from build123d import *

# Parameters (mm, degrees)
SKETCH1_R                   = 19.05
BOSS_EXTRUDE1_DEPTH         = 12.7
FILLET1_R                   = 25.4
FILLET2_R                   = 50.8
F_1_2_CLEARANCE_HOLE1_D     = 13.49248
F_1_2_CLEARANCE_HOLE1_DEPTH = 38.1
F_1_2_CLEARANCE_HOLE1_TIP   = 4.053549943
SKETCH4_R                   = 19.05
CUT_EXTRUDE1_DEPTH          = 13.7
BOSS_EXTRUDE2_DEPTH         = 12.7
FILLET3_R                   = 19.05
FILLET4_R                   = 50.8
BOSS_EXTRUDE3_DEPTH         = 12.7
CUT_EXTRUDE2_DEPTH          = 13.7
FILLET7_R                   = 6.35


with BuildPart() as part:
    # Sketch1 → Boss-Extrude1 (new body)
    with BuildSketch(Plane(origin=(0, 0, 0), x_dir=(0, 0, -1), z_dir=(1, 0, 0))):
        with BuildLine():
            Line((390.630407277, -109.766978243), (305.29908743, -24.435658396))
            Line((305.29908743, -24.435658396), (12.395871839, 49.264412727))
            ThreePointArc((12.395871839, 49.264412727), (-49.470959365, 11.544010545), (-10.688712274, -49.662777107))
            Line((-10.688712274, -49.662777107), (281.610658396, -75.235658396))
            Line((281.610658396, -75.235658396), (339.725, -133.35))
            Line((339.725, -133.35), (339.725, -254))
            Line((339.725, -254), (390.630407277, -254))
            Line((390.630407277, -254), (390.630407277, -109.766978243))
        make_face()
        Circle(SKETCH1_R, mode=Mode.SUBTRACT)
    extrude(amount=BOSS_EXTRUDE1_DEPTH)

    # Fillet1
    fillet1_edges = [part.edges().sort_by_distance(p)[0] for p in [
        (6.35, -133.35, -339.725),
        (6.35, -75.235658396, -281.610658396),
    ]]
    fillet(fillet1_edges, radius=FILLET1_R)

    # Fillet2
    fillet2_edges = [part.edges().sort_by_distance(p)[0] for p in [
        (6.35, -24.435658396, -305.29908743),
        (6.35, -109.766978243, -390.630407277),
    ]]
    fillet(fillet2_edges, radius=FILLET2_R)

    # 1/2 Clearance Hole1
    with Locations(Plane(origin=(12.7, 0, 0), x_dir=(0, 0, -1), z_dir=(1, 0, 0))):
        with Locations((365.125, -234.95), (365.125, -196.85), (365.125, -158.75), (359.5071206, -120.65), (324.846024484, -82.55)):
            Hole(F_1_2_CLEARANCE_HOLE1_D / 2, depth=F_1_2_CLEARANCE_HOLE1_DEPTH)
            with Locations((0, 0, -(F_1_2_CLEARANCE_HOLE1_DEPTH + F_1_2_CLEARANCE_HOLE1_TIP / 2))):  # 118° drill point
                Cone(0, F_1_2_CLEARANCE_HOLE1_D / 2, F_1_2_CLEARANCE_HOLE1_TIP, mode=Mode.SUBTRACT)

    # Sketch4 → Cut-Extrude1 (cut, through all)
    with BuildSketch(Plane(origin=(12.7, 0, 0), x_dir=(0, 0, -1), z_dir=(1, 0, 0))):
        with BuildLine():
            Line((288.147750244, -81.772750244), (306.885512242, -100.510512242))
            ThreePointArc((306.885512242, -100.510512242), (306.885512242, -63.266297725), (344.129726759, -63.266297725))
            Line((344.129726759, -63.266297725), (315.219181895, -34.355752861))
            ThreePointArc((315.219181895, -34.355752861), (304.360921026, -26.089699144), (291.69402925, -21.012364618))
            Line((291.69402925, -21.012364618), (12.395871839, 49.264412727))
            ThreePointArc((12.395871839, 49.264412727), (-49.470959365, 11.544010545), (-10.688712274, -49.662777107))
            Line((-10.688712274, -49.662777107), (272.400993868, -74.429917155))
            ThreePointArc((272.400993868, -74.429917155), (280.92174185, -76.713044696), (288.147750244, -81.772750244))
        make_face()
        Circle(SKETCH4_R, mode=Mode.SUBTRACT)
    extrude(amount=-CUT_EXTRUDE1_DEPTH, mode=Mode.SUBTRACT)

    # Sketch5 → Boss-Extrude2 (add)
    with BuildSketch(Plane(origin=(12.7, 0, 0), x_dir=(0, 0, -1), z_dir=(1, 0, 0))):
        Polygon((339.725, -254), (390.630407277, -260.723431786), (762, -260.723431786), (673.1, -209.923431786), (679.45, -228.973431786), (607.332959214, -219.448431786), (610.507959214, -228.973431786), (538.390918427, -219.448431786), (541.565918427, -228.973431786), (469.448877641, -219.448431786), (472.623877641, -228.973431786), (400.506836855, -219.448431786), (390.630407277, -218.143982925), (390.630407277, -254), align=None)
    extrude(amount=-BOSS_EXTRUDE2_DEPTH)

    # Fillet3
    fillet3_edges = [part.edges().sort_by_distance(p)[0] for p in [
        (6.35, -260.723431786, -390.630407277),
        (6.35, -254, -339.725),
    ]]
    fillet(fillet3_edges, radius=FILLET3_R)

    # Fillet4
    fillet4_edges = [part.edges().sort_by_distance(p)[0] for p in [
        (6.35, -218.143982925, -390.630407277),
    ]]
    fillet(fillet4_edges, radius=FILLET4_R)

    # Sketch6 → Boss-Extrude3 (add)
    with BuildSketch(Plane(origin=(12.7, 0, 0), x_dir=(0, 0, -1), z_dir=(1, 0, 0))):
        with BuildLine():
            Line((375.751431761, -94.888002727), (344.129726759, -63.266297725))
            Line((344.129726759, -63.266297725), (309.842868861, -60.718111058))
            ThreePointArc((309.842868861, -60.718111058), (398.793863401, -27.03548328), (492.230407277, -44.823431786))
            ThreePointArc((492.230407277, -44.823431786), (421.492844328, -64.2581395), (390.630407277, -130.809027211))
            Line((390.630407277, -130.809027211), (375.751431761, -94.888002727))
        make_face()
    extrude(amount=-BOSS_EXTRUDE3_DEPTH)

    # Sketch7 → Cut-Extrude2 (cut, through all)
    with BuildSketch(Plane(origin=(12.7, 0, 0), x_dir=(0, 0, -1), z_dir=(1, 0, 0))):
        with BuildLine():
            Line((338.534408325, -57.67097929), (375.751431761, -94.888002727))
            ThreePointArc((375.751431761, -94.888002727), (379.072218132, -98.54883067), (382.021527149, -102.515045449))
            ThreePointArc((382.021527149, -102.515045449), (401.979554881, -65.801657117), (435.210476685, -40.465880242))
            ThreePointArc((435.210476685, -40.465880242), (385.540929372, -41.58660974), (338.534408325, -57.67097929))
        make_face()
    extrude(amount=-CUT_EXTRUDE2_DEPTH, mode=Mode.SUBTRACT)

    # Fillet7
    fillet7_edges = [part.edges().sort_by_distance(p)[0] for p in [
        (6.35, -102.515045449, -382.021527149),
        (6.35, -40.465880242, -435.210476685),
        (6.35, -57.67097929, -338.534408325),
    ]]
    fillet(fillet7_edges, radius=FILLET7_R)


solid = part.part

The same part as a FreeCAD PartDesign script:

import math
import FreeCAD as App
import Part
import Sketcher

V = App.Vector
Q = App.Units.Quantity


def edges_at(feature, points):
    """Names of the edges that pass closest to the given points."""
    edges = feature.Shape.Edges
    near = lambda p: min(range(len(edges)), key=lambda i: edges[i].distToShape(Part.Vertex(*p))[0])
    return sorted({f"Edge{near(p) + 1}" for p in points})

doc = App.newDocument("Part")
params = doc.addObject("Spreadsheet::Sheet", "Params")
for row, (alias, value) in enumerate([
    ("sketch1_radius", "2 in"),
    ("sketch1_diameter", "1.5 in"),
    ("sketch1_width", "4.75 in"),
    ("pad1_length", "0.5 in"),
    ("fillet_radius", "1 in"),
    ("fillet2_radius", "2 in"),
    ("hole_diameter", "0.5312 in"),
    ("hole_depth", "1.5 in"),
    ("sketch3_radius", "2 in"),
    ("sketch3_radius2", "1 in"),
    ("sketch3_diameter", "1.5 in"),
    ("pad2_length", "0.5 in"),
    ("fillet3_radius", "0.75 in"),
    ("fillet4_radius", "2 in"),
    ("pad3_length", "0.5 in"),
    ("sketch6_radius", "2 in"),
    ("fillet5_radius", "0.25 in"),
], start=1):
    params.set(f"A{row}", alias)
    params.set(f"B{row}", "=" + value)
    params.setAlias(f"B{row}", alias)

body = doc.addObject("PartDesign::Body", "Body")

sketch1 = body.newObject("Sketcher::SketchObject", "Sketch")
sketch1.AttachmentSupport = (doc.getObject("YZ_Plane"), [""])
sketch1.MapMode = "FlatFace"
sketch1.addGeometry([
    Part.LineSegment(V(-110, -391, 0), V(-24, -305, 0)),
    Part.LineSegment(V(-24, -305, 0), V(49, -12, 0)),
    Part.ArcOfCircle(Part.Circle(V(0, 0, 0), V(0, 0, 1), 51), math.radians(-14), math.radians(168)),
    Part.LineSegment(V(-50, 11, 0), V(-75, -282, 0)),
    Part.LineSegment(V(-75, -282, 0), V(-133, -340, 0)),
    Part.LineSegment(V(-133, -340, 0), V(-254, -340, 0)),
    Part.LineSegment(V(-254, -340, 0), V(-254, -391, 0)),
    Part.LineSegment(V(-254, -391, 0), V(-110, -391, 0)),
    Part.Circle(V(0, 0, 0), V(0, 0, 1), 19),
], False)
sketch1.addConstraint([
    Sketcher.Constraint("Coincident", 0, 2, 1, 1),
    Sketcher.Constraint("Tangent", 1, 2, 2, 1),
    Sketcher.Constraint("Coincident", 2, 2, 3, 1),
    Sketcher.Constraint("Coincident", 3, 2, 4, 1),
    Sketcher.Constraint("Coincident", 4, 2, 5, 1),
    Sketcher.Constraint("Coincident", 5, 2, 6, 1),
    Sketcher.Constraint("Coincident", 6, 2, 7, 1),
    Sketcher.Constraint("Coincident", 7, 2, 0, 1),
    Sketcher.Constraint("Horizontal", 5),
    Sketcher.Constraint("Vertical", 6),
    Sketcher.Constraint("Horizontal", 7),
    Sketcher.Constraint("Coincident", 2, 3, -1, 1),
    Sketcher.Constraint("Coincident", 8, 3, -1, 1),
    Sketcher.Constraint("Parallel", 0, 4),
    Sketcher.Constraint("Radius", 2, Q("2 in")),
    Sketcher.Constraint("Diameter", 8, Q("1.5 in")),
    Sketcher.Constraint("DistanceX", 5, 2, -1, 1, Q("10 in")),
    Sketcher.Constraint("Angle", 0, Q("45 deg")),
    Sketcher.Constraint("Angle", 3, Q("-95 deg")),
    Sketcher.Constraint("DistanceX", 3, 2, 0, 2, Q("2 in")),
    Sketcher.Constraint("DistanceX", 5, 2, 5, 1, Q("4.75 in")),
    Sketcher.Constraint("DistanceY", 4, 2, -1, 1, Q("13.375 in")),
    Sketcher.Constraint("Distance", 1, 302.033101),
    Sketcher.Constraint("DistanceX", 7, 1, 7, 2, 144.233022),
    Sketcher.Constraint("DistanceY", 0, 2, 2, 2, 315.9878),
])
sketch1.setExpression("Constraints[14]", "Params.sketch1_radius")
sketch1.setExpression("Constraints[15]", "Params.sketch1_diameter")
sketch1.setExpression("Constraints[20]", "Params.sketch1_width")
pad1 = body.newObject("PartDesign::Pad", "Pad")
pad1.Profile = sketch1
pad1.setExpression("Length", "Params.pad1_length")
doc.recompute()

fillet = body.newObject("PartDesign::Fillet", "Fillet")
fillet.Base = (pad1, edges_at(pad1, [(6.35, -133.35, -339.725), (6.35, -75.236, -281.611)]))
fillet.setExpression("Radius", "Params.fillet_radius")
doc.recompute()

fillet2 = body.newObject("PartDesign::Fillet", "Fillet001")
fillet2.Base = (fillet, edges_at(fillet, [(6.35, -24.436, -305.299), (6.35, -109.767, -390.63)]))
fillet2.setExpression("Radius", "Params.fillet2_radius")

sketch2 = body.newObject("Sketcher::SketchObject", "Sketch001")
sketch2.AttachmentSupport = (doc.getObject("YZ_Plane"), [""])
sketch2.MapMode = "FlatFace"
sketch2.AttachmentOffset = App.Placement(V(0, 0, 0.5 * 25.4), App.Rotation())
sketch2.addGeometry([
    Part.Circle(V(-235, -365, 0), V(0, 0, 1), 7),
    Part.Circle(V(-197, -365, 0), V(0, 0, 1), 7),
    Part.Circle(V(-159, -365, 0), V(0, 0, 1), 7),
    Part.Circle(V(-121, -360, 0), V(0, 0, 1), 7),
    Part.Circle(V(-83, -325, 0), V(0, 0, 1), 7),
], False)
sketch2.addConstraint([
    Sketcher.Constraint("Equal", 0, 1),
    Sketcher.Constraint("Equal", 1, 2),
    Sketcher.Constraint("Equal", 2, 3),
    Sketcher.Constraint("Equal", 3, 4),
    Sketcher.Constraint("Horizontal", 0, 3, 1, 3),
    Sketcher.Constraint("Horizontal", 1, 3, 2, 3),
    Sketcher.Constraint("DistanceX", 0, 3, 2, 3, Q("3 in")),
    Sketcher.Constraint("DistanceX", 1, 3, 3, 3, Q("3 in")),
    Sketcher.Constraint("DistanceX", 2, 3, 4, 3, Q("3 in")),
    Sketcher.Constraint("Diameter", 0, Q("0.5312 in")),
    Sketcher.Constraint("DistanceX", 0, 3, 1, 3, Q("1.5 in")),
    Sketcher.Constraint("DistanceX", 0, 3, -1, 1, Q("9.25 in")),
    Sketcher.Constraint("DistanceY", 0, 3, -1, 1, Q("14.375 in")),
    Sketcher.Constraint("DistanceY", 3, 3, -1, 1, 359.507121),
    Sketcher.Constraint("DistanceY", 4, 3, -1, 1, 324.846024),
])
doc.recompute()
hole = body.newObject("PartDesign::Hole", "Hole")
hole.Profile = sketch2
hole.ThreadType = "None"
hole.setExpression("Diameter", "Params.hole_diameter")
hole.DepthType = "Dimension"
hole.setExpression("Depth", "Params.hole_depth")
hole.DrillPoint = "Angled"
hole.DrillPointAngle = 118

sketch3 = body.newObject("Sketcher::SketchObject", "Sketch002")
sketch3.AttachmentSupport = (doc.getObject("YZ_Plane"), [""])
sketch3.MapMode = "FlatFace"
sketch3.AttachmentOffset = App.Placement(V(0, 0, 0.5 * 25.4), App.Rotation())
sketch3.addGeometry([
    Part.LineSegment(V(-82, -288, 0), V(-101, -307, 0)),
    Part.ArcOfCircle(Part.Circle(V(-82, -326, 0), V(0, 0, 1), 26), math.radians(-45), math.radians(135)),
    Part.LineSegment(V(-63, -344, 0), V(-34, -315, 0)),
    Part.ArcOfCircle(Part.Circle(V(-70, -279, 0), V(0, 0, 1), 51), math.radians(-45), math.radians(-14)),
    Part.LineSegment(V(-21, -292, 0), V(49, -12, 0)),
    Part.ArcOfCircle(Part.Circle(V(0, 0, 0), V(0, 0, 1), 51), math.radians(-14), math.radians(168)),
    Part.LineSegment(V(-50, 11, 0), V(-74, -272, 0)),
    Part.ArcOfCircle(Part.Circle(V(-100, -270, 0), V(0, 0, 1), 25), math.radians(-45), math.radians(-5)),
    Part.Circle(V(0, 0, 0), V(0, 0, 1), 19),
], False)
sketch3.addConstraint([
    Sketcher.Constraint("Tangent", 0, 2, 1, 2),
    Sketcher.Constraint("Tangent", 1, 1, 2, 1),
    Sketcher.Constraint("Tangent", 2, 2, 3, 1),
    Sketcher.Constraint("Tangent", 3, 2, 4, 1),
    Sketcher.Constraint("Tangent", 4, 2, 5, 1),
    Sketcher.Constraint("Coincident", 5, 2, 6, 1),
    Sketcher.Constraint("Tangent", 6, 2, 7, 2),
    Sketcher.Constraint("Tangent", 7, 1, 0, 1),
    Sketcher.Constraint("Coincident", 5, 3, -1, 1),
    Sketcher.Constraint("Coincident", 8, 3, -1, 1),
    Sketcher.Constraint("Equal", 3, 5),
    Sketcher.Constraint("Parallel", 0, 2),
    Sketcher.Constraint("Radius", 3, Q("2 in")),
    Sketcher.Constraint("Radius", 7, Q("1 in")),
    Sketcher.Constraint("Diameter", 8, Q("1.5 in")),
    Sketcher.Constraint("Angle", 0, Q("-135 deg")),
    Sketcher.Constraint("Angle", 6, Q("-95 deg")),
    Sketcher.Constraint("Radius", 1, 26.335637),
    Sketcher.Constraint("DistanceX", 3, 3, 5, 2, 20.614),
    Sketcher.Constraint("Distance", 4, 288.003969),
    Sketcher.Constraint("DistanceY", 1, 3, -1, 1, 325.50762),
    Sketcher.Constraint("DistanceY", 7, 3, -1, 1, 270.187238),
])
sketch3.setExpression("Constraints[12]", "Params.sketch3_radius")
sketch3.setExpression("Constraints[13]", "Params.sketch3_radius2")
sketch3.setExpression("Constraints[14]", "Params.sketch3_diameter")
pocket1 = body.newObject("PartDesign::Pocket", "Pocket")
pocket1.Profile = sketch3
pocket1.Type = "ThroughAll"

sketch4 = body.newObject("Sketcher::SketchObject", "Sketch003")
sketch4.AttachmentSupport = (doc.getObject("YZ_Plane"), [""])
sketch4.MapMode = "FlatFace"
sketch4.AttachmentOffset = App.Placement(V(0, 0, 0.5 * 25.4), App.Rotation())
sketch4.addGeometry([
    Part.LineSegment(V(-254, -340, 0), V(-261, -391, 0)),
    Part.LineSegment(V(-261, -391, 0), V(-261, -762, 0)),
    Part.LineSegment(V(-261, -762, 0), V(-210, -673, 0)),
    Part.LineSegment(V(-210, -673, 0), V(-229, -679, 0)),
    Part.LineSegment(V(-229, -679, 0), V(-219, -607, 0)),
    Part.LineSegment(V(-219, -607, 0), V(-229, -611, 0)),
    Part.LineSegment(V(-229, -611, 0), V(-219, -538, 0)),
    Part.LineSegment(V(-219, -538, 0), V(-229, -542, 0)),
    Part.LineSegment(V(-229, -542, 0), V(-219, -469, 0)),
    Part.LineSegment(V(-219, -469, 0), V(-229, -473, 0)),
    Part.LineSegment(V(-229, -473, 0), V(-219, -401, 0)),
    Part.LineSegment(V(-219, -401, 0), V(-218, -391, 0)),
    Part.LineSegment(V(-218, -391, 0), V(-254, -391, 0)),
    Part.LineSegment(V(-254, -391, 0), V(-254, -340, 0)),
], False)
sketch4.addConstraint([
    Sketcher.Constraint("Coincident", 0, 2, 1, 1),
    Sketcher.Constraint("Coincident", 1, 2, 2, 1),
    Sketcher.Constraint("Coincident", 2, 2, 3, 1),
    Sketcher.Constraint("Coincident", 3, 2, 4, 1),
    Sketcher.Constraint("Coincident", 4, 2, 5, 1),
    Sketcher.Constraint("Coincident", 5, 2, 6, 1),
    Sketcher.Constraint("Coincident", 6, 2, 7, 1),
    Sketcher.Constraint("Coincident", 7, 2, 8, 1),
    Sketcher.Constraint("Coincident", 8, 2, 9, 1),
    Sketcher.Constraint("Coincident", 9, 2, 10, 1),
    Sketcher.Constraint("Coincident", 10, 2, 11, 1),
    Sketcher.Constraint("Coincident", 11, 2, 12, 1),
    Sketcher.Constraint("Coincident", 12, 2, 13, 1),
    Sketcher.Constraint("Coincident", 13, 2, 0, 1),
    Sketcher.Constraint("Vertical", 1),
    Sketcher.Constraint("Horizontal", 12),
    Sketcher.Constraint("Vertical", 13),
    Sketcher.Constraint("Parallel", 0, 4),
    Sketcher.Constraint("Parallel", 3, 5),
    Sketcher.Constraint("Parallel", 4, 6),
    Sketcher.Constraint("Parallel", 5, 7),
    Sketcher.Constraint("Parallel", 6, 8),
    Sketcher.Constraint("Parallel", 7, 9),
    Sketcher.Constraint("Parallel", 8, 10),
    Sketcher.Constraint("Parallel", 10, 11),
    Sketcher.Constraint("Horizontal", 0, 2, 11, 2),
    Sketcher.Constraint("Vertical", 3, 2, 5, 2),
    Sketcher.Constraint("Vertical", 4, 2, 6, 2),
    Sketcher.Constraint("Vertical", 5, 2, 7, 2),
    Sketcher.Constraint("Vertical", 6, 2, 8, 2),
    Sketcher.Constraint("Vertical", 7, 2, 9, 2),
    Sketcher.Constraint("Vertical", 8, 2, 10, 2),
    Sketcher.Constraint("DistanceY", 1, 2, -1, 1, Q("30 in")),
    Sketcher.Constraint("DistanceX", 12, 2, -1, 1, Q("10 in")),
    Sketcher.Constraint("DistanceX", 1, 2, 2, 2, Q("2 in")),
    Sketcher.Constraint("DistanceY", 2, 2, -1, 1, Q("26.5 in")),
    Sketcher.Constraint("DistanceY", 3, 2, -1, 1, Q("26.75 in")),
    Sketcher.Constraint("DistanceX", 3, 2, 2, 2, Q("0.75 in")),
    Sketcher.Constraint("DistanceY", 13, 2, -1, 1, Q("13.375 in")),
    Sketcher.Constraint("DistanceX", 4, 2, 2, 2, Q("0.375 in")),
    Sketcher.Constraint("Distance", 11, 9.962201),
    Sketcher.Constraint("DistanceX", 12, 2, 12, 1, 35.856017),
])
pad2 = body.newObject("PartDesign::Pad", "Pad001")
pad2.Profile = sketch4
pad2.setExpression("Length", "Params.pad2_length")
pad2.Reversed = True
doc.recompute()

fillet3 = body.newObject("PartDesign::Fillet", "Fillet002")
fillet3.Base = (pad2, edges_at(pad2, [(6.35, -260.723, -390.63), (6.35, -254, -339.725)]))
fillet3.setExpression("Radius", "Params.fillet3_radius")
doc.recompute()

fillet4 = body.newObject("PartDesign::Fillet", "Fillet003")
fillet4.Base = (fillet3, edges_at(fillet3, [(6.35, -218.144, -390.63)]))
fillet4.setExpression("Radius", "Params.fillet4_radius")

sketch5 = body.newObject("Sketcher::SketchObject", "Sketch004")
sketch5.AttachmentSupport = (doc.getObject("YZ_Plane"), [""])
sketch5.MapMode = "FlatFace"
sketch5.AttachmentOffset = App.Placement(V(0, 0, 0.5 * 25.4), App.Rotation())
sketch5.addGeometry([
    Part.LineSegment(V(-63, -344, 0), V(-95, -376, 0)),
    Part.LineSegment(V(-95, -376, 0), V(-131, -391, 0)),
    Part.ArcOfCircle(Part.Circle(V(-131, -478, 0), V(0, 0, 1), 87), math.radians(-10), math.radians(90)),
    Part.ArcOfCircle(Part.Circle(V(-201, -414, 0), V(0, 0, 1), 175), math.radians(-27), math.radians(36)),
    Part.LineSegment(V(-61, -310, 0), V(-63, -344, 0)),
], False)
sketch5.addConstraint([
    Sketcher.Constraint("Coincident", 0, 2, 1, 1),
    Sketcher.Constraint("Coincident", 1, 2, 2, 2),
    Sketcher.Constraint("Coincident", 2, 1, 3, 1),
    Sketcher.Constraint("Coincident", 3, 2, 4, 1),
    Sketcher.Constraint("Coincident", 4, 2, 0, 1),
    Sketcher.Constraint("Vertical", 2, 3, 1, 2),
    Sketcher.Constraint("Angle", 0, Q("-135 deg")),
    Sketcher.Constraint("DistanceY", 2, 1, 1, 2, Q("4 in")),
    Sketcher.Constraint("Angle", 1, Q("-157.5 deg")),
    Sketcher.Constraint("Radius", 2, 87.185446),
    Sketcher.Constraint("Radius", 3, 175.102746),
    Sketcher.Constraint("DistanceY", 3, 3, 3, 2, 104.153201),
    Sketcher.Constraint("DistanceY", 3, 3, -1, 1, 413.99607),
    Sketcher.Constraint("DistanceY", 0, 2, -1, 1, 375.751432),
    Sketcher.Constraint("DistanceX", 2, 1, -1, 1, 44.823432),
    Sketcher.Constraint("DistanceY", 2, 3, 0, 2, 102.064421),
    Sketcher.Constraint("DistanceX", 1, 2, 4, 2, 67.542729),
])
pad3 = body.newObject("PartDesign::Pad", "Pad002")
pad3.Profile = sketch5
pad3.setExpression("Length", "Params.pad3_length")
pad3.Reversed = True

sketch6 = body.newObject("Sketcher::SketchObject", "Sketch005")
sketch6.AttachmentSupport = (doc.getObject("YZ_Plane"), [""])
sketch6.MapMode = "FlatFace"
sketch6.AttachmentOffset = App.Placement(V(0, 0, 0.5 * 25.4), App.Rotation())
sketch6.addGeometry([
    Part.LineSegment(V(-58, -339, 0), V(-95, -376, 0)),
    Part.ArcOfCircle(Part.Circle(V(-131, -340, 0), V(0, 0, 1), 51), math.radians(-56.15), math.radians(-45)),
    Part.ArcOfCircle(Part.Circle(V(-131, -478, 0), V(0, 0, 1), 100), math.radians(25), math.radians(74)),
    Part.ArcOfCircle(Part.Circle(V(-201, -414, 0), V(0, 0, 1), 162), math.radians(-8), math.radians(28)),
], False)
sketch6.addConstraint([
    Sketcher.Constraint("Tangent", 0, 2, 1, 2),
    Sketcher.Constraint("Coincident", 1, 1, 2, 2),
    Sketcher.Constraint("Coincident", 2, 1, 3, 1),
    Sketcher.Constraint("Coincident", 3, 2, 0, 1),
    Sketcher.Constraint("Vertical", 1, 3, 2, 3),
    Sketcher.Constraint("Radius", 1, Q("2 in")),
    Sketcher.Constraint("Angle", 0, Q("-135 deg")),
    Sketcher.Constraint("Radius", 2, 99.885446),
    Sketcher.Constraint("Radius", 3, 162.402746),
    Sketcher.Constraint("DistanceY", 1, 3, 3, 2, 1.295999),
    Sketcher.Constraint("DistanceX", 3, 2, 2, 1, 17.205099),
    Sketcher.Constraint("DistanceY", 3, 3, -1, 1, 413.99607),
    Sketcher.Constraint("DistanceY", 0, 2, -1, 1, 375.751432),
    Sketcher.Constraint("DistanceX", 2, 1, -1, 1, 40.46588),
])
sketch6.setExpression("Constraints[5]", "Params.sketch6_radius")
pocket2 = body.newObject("PartDesign::Pocket", "Pocket001")
pocket2.Profile = sketch6
pocket2.Type = "ThroughAll"
doc.recompute()

fillet5 = body.newObject("PartDesign::Fillet", "Fillet004")
fillet5.Base = (pocket2, edges_at(pocket2, [(6.35, -102.515, -382.022), (6.35, -40.466, -435.21), (6.35, -57.671, -338.534)]))
fillet5.setExpression("Radius", "Params.fillet5_radius")

doc.recompute()
